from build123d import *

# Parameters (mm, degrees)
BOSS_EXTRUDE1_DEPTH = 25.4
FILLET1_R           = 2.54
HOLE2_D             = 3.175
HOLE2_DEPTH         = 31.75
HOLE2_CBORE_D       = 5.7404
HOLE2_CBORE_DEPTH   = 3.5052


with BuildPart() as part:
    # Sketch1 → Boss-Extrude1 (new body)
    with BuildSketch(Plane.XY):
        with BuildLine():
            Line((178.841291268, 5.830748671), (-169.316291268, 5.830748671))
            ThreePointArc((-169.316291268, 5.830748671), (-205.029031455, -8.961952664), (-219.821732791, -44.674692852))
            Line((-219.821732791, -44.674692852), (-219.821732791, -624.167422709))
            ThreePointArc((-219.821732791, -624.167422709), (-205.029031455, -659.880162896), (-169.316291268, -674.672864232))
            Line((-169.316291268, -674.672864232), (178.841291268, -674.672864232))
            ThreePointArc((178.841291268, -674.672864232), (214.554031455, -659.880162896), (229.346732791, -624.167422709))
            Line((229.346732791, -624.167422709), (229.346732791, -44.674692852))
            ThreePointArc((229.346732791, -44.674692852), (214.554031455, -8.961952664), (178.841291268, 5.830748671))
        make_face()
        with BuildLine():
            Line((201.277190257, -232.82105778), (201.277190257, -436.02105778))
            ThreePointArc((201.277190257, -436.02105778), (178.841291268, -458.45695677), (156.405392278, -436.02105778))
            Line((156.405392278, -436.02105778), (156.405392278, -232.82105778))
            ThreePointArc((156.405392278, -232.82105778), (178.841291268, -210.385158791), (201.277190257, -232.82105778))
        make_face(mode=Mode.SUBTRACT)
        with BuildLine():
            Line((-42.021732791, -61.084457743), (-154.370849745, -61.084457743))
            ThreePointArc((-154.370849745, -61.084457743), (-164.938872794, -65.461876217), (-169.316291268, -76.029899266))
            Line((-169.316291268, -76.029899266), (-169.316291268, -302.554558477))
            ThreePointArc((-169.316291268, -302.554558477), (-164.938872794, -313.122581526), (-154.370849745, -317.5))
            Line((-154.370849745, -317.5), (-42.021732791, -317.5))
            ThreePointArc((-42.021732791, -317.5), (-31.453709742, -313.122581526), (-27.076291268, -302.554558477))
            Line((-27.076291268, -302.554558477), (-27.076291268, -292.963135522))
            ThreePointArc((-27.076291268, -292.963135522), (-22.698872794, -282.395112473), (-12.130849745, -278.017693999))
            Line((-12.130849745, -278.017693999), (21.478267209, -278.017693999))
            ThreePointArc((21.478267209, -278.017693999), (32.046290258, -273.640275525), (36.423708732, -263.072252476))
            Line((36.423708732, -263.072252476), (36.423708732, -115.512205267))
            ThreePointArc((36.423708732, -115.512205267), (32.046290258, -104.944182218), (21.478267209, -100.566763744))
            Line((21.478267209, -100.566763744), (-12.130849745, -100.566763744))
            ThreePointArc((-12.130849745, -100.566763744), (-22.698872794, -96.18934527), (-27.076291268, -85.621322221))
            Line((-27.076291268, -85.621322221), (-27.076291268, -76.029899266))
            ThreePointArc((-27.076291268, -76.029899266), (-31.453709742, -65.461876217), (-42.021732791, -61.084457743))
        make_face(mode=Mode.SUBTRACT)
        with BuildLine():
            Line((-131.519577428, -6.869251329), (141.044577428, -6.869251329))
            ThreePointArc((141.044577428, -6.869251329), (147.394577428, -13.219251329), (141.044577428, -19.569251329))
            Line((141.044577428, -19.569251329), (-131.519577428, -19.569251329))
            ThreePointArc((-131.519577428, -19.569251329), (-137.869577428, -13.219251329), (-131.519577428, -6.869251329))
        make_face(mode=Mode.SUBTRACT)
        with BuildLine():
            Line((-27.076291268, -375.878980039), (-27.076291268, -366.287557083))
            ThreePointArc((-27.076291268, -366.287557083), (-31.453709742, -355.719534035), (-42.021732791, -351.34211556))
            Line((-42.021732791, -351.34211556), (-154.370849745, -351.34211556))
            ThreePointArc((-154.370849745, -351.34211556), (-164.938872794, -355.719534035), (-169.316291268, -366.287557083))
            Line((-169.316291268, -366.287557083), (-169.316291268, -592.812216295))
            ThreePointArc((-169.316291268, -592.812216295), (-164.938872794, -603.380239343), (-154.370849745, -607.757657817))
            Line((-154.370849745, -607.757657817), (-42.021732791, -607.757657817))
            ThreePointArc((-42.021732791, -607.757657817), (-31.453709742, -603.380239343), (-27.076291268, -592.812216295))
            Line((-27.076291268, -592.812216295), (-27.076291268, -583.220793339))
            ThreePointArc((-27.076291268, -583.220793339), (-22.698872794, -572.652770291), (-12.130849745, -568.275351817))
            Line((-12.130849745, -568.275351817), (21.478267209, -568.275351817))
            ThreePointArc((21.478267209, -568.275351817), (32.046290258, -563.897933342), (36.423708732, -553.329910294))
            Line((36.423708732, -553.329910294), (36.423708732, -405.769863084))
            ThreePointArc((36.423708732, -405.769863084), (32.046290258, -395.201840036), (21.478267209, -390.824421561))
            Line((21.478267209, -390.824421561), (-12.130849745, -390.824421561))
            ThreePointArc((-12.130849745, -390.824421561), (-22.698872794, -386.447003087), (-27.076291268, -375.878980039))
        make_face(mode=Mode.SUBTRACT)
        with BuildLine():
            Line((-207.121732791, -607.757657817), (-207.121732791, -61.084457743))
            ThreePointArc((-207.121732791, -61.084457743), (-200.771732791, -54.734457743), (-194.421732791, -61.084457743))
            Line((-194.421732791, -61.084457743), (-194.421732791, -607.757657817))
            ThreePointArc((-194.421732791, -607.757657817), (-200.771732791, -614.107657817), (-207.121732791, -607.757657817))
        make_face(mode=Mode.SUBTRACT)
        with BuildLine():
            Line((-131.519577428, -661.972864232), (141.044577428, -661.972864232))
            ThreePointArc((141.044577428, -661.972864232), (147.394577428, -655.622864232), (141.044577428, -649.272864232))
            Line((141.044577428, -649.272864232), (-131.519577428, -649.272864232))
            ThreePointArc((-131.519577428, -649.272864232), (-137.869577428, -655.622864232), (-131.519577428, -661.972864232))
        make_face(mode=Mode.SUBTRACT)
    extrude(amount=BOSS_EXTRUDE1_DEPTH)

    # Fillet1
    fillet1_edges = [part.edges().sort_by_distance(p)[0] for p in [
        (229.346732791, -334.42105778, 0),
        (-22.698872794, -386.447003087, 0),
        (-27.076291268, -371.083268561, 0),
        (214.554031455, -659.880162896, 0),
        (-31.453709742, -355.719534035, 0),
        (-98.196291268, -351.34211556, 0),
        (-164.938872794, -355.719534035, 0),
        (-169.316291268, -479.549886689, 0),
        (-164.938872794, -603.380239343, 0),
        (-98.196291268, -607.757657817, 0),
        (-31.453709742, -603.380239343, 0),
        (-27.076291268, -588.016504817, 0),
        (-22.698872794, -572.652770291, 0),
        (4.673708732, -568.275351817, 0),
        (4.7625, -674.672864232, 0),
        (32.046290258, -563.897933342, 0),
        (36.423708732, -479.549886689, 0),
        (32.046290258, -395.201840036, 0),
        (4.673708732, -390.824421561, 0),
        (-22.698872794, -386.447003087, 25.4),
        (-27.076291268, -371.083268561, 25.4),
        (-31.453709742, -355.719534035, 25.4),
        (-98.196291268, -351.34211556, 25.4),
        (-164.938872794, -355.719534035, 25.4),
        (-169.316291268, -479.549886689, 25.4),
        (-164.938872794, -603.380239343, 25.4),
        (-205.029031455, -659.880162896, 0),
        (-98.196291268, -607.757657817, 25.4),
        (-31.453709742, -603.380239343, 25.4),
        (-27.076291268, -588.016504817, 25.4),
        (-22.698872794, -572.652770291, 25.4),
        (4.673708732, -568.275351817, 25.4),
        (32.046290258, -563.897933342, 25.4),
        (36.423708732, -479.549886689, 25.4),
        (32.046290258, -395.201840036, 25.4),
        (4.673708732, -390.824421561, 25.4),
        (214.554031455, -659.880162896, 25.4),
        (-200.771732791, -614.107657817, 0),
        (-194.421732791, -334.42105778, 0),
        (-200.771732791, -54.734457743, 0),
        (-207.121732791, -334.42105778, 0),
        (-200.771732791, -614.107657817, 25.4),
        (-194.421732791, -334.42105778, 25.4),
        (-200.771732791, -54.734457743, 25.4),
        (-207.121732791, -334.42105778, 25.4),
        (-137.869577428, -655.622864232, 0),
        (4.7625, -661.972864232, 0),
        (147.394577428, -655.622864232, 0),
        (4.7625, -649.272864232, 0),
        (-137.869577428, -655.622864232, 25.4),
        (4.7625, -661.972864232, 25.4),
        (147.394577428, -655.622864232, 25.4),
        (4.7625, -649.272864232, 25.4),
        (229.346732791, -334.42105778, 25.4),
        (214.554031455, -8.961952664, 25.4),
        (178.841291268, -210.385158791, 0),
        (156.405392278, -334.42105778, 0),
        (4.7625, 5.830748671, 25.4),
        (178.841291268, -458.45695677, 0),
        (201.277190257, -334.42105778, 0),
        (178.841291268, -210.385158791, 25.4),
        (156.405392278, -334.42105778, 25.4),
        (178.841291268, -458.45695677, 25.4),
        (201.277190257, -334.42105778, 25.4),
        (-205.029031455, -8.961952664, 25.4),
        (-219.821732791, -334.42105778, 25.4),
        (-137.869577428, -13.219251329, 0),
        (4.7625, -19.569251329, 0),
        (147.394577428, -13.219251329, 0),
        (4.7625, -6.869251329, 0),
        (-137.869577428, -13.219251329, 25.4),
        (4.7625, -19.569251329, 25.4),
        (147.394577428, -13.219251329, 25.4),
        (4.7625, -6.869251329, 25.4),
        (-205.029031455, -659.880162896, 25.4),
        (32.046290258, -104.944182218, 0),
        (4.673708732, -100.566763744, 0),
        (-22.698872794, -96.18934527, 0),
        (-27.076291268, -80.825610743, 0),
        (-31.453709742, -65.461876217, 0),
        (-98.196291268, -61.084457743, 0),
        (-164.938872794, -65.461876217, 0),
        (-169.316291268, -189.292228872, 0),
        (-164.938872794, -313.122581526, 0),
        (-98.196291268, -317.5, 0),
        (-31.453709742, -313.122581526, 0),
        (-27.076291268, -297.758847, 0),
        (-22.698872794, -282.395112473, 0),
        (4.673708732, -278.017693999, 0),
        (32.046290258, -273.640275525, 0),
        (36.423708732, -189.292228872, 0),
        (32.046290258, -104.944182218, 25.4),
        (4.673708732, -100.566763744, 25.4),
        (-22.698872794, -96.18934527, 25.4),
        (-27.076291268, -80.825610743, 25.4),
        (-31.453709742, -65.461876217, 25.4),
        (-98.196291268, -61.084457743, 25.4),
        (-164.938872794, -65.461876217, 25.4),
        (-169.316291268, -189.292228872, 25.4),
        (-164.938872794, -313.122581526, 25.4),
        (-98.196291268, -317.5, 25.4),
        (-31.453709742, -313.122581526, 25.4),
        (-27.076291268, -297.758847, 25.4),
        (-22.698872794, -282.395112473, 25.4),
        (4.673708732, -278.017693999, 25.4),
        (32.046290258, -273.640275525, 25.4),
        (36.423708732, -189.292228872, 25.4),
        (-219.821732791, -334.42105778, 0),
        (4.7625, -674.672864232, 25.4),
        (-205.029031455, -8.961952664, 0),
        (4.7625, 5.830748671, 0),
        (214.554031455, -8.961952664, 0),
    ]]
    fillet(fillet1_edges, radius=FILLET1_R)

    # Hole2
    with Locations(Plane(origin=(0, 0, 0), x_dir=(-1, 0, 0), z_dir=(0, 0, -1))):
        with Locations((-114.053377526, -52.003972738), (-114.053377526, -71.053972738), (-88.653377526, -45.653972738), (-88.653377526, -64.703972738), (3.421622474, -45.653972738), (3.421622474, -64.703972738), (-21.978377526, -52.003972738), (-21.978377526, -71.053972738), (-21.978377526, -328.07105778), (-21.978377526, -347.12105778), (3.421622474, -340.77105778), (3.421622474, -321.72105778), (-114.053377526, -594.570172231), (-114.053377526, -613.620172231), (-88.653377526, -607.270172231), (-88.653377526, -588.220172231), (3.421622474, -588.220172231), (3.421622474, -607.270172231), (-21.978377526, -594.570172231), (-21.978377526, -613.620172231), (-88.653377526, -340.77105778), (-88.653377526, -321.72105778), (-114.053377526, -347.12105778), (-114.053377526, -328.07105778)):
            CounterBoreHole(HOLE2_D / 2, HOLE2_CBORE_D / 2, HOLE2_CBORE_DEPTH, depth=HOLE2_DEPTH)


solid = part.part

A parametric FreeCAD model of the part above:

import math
import FreeCAD as App
import Part
import Sketcher
from FreeCAD import Vector
Q = App.Units.Quantity


def edges_at(feature, points):
    """Names of the edges that pass closest to the given points."""
    edges = feature.Shape.Edges
    near = lambda p: min(range(len(edges)), key=lambda i: edges[i].distToShape(Part.Vertex(*p))[0])
    return sorted({f"Edge{near(p) + 1}" for p in points})

doc = App.newDocument("Part")
body = doc.addObject("PartDesign::Body", "Body")

# Sketch on XY plane
sketch1 = body.newObject("Sketcher::SketchObject", "Sketch")
sketch1.AttachmentSupport = (doc.getObject("XY_Plane"), [""])
sketch1.MapMode = "FlatFace"
sketch1.addGeometry([
    Part.LineSegment(Vector(179, 6, 0), Vector(-169, 6, 0)),  # 0
    Part.ArcOfCircle(Part.Circle(Vector(-169, -45, 0), Vector(0, 0, 1), 51), math.radians(90), math.radians(180)),  # 1
    Part.LineSegment(Vector(-220, -45, 0), Vector(-220, -624, 0)),  # 2
    Part.ArcOfCircle(Part.Circle(Vector(-169, -624, 0), Vector(0, 0, 1), 51), math.radians(-180), math.radians(-90)),  # 3
    Part.LineSegment(Vector(-169, -675, 0), Vector(179, -675, 0)),  # 4
    Part.ArcOfCircle(Part.Circle(Vector(179, -624, 0), Vector(0, 0, 1), 51), math.radians(-90), math.radians(0)),  # 5
    Part.LineSegment(Vector(229, -624, 0), Vector(229, -45, 0)),  # 6
    Part.ArcOfCircle(Part.Circle(Vector(179, -45, 0), Vector(0, 0, 1), 51), math.radians(0), math.radians(90)),  # 7
    Part.LineSegment(Vector(-27, -366, 0), Vector(-27, -376, 0)),  # 8
    Part.ArcOfCircle(Part.Circle(Vector(-12, -376, 0), Vector(0, 0, 1), 15), math.radians(180), math.radians(270)),  # 9
    Part.LineSegment(Vector(-12, -391, 0), Vector(21, -391, 0)),  # 10
    Part.ArcOfCircle(Part.Circle(Vector(21, -406, 0), Vector(0, 0, 1), 15), math.radians(0), math.radians(90)),  # 11
    Part.LineSegment(Vector(36, -406, 0), Vector(36, -553, 0)),  # 12
    Part.ArcOfCircle(Part.Circle(Vector(21, -553, 0), Vector(0, 0, 1), 15), math.radians(-90), math.radians(0)),  # 13
    Part.LineSegment(Vector(21, -568, 0), Vector(-12, -568, 0)),  # 14
    Part.ArcOfCircle(Part.Circle(Vector(-12, -583, 0), Vector(0, 0, 1), 15), math.radians(90), math.radians(180)),  # 15
    Part.LineSegment(Vector(-27, -583, 0), Vector(-27, -593, 0)),  # 16
    Part.ArcOfCircle(Part.Circle(Vector(-42, -593, 0), Vector(0, 0, 1), 15), math.radians(-90), math.radians(0)),  # 17
    Part.LineSegment(Vector(-42, -608, 0), Vector(-154, -608, 0)),  # 18
    Part.ArcOfCircle(Part.Circle(Vector(-154, -593, 0), Vector(0, 0, 1), 15), math.radians(180), math.radians(270)),  # 19
    Part.LineSegment(Vector(-169, -593, 0), Vector(-169, -366, 0)),  # 20
    Part.ArcOfCircle(Part.Circle(Vector(-154, -366, 0), Vector(0, 0, 1), 15), math.radians(90), math.radians(180)),  # 21
    Part.LineSegment(Vector(-154, -351, 0), Vector(-42, -351, 0)),  # 22
    Part.ArcOfCircle(Part.Circle(Vector(-42, -366, 0), Vector(0, 0, 1), 15), math.radians(0), math.radians(90)),  # 23
    Part.LineSegment(Vector(141, -662, 0), Vector(-132, -662, 0)),  # 24
    Part.ArcOfCircle(Part.Circle(Vector(-132, -656, 0), Vector(0, 0, 1), 6), math.radians(90), math.radians(270)),  # 25
    Part.LineSegment(Vector(-132, -649, 0), Vector(141, -649, 0)),  # 26
    Part.ArcOfCircle(Part.Circle(Vector(141, -656, 0), Vector(0, 0, 1), 6), math.radians(-90), math.radians(90)),  # 27
    Part.ArcOfCircle(Part.Circle(Vector(179, -233, 0), Vector(0, 0, 1), 22), math.radians(0), math.radians(180)),  # 28
    Part.LineSegment(Vector(201, -233, 0), Vector(201, -436, 0)),  # 29
    Part.ArcOfCircle(Part.Circle(Vector(179, -436, 0), Vector(0, 0, 1), 22), math.radians(180), math.radians(360)),  # 30
    Part.LineSegment(Vector(156, -436, 0), Vector(156, -233, 0)),  # 31
    Part.ArcOfCircle(Part.Circle(Vector(-201, -608, 0), Vector(0, 0, 1), 6), math.radians(180), math.radians(360)),  # 32
    Part.LineSegment(Vector(-207, -608, 0), Vector(-207, -61, 0)),  # 33
    Part.ArcOfCircle(Part.Circle(Vector(-201, -61, 0), Vector(0, 0, 1), 6), math.radians(0), math.radians(180)),  # 34
    Part.LineSegment(Vector(-194, -61, 0), Vector(-194, -608, 0)),  # 35
    Part.LineSegment(Vector(-154, -61, 0), Vector(-42, -61, 0)),  # 36
    Part.ArcOfCircle(Part.Circle(Vector(-42, -76, 0), Vector(0, 0, 1), 15), math.radians(0), math.radians(90)),  # 37
    Part.LineSegment(Vector(-27, -76, 0), Vector(-27, -86, 0)),  # 38
    Part.ArcOfCircle(Part.Circle(Vector(-12, -86, 0), Vector(0, 0, 1), 15), math.radians(180), math.radians(270)),  # 39
    Part.LineSegment(Vector(-12, -101, 0), Vector(21, -101, 0)),  # 40
    Part.ArcOfCircle(Part.Circle(Vector(21, -116, 0), Vector(0, 0, 1), 15), math.radians(0), math.radians(90)),  # 41
    Part.LineSegment(Vector(36, -116, 0), Vector(36, -263, 0)),  # 42
    Part.ArcOfCircle(Part.Circle(Vector(21, -263, 0), Vector(0, 0, 1), 15), math.radians(-90), math.radians(0)),  # 43
    Part.LineSegment(Vector(21, -278, 0), Vector(-12, -278, 0)),  # 44
    Part.ArcOfCircle(Part.Circle(Vector(-12, -293, 0), Vector(0, 0, 1), 15), math.radians(90), math.radians(180)),  # 45
    Part.LineSegment(Vector(-27, -293, 0), Vector(-27, -303, 0)),  # 46
    Part.ArcOfCircle(Part.Circle(Vector(-42, -303, 0), Vector(0, 0, 1), 15), math.radians(-90), math.radians(0)),  # 47
    Part.LineSegment(Vector(-42, -318, 0), Vector(-154, -318, 0)),  # 48
    Part.ArcOfCircle(Part.Circle(Vector(-154, -303, 0), Vector(0, 0, 1), 15), math.radians(180), math.radians(270)),  # 49
    Part.LineSegment(Vector(-169, -303, 0), Vector(-169, -76, 0)),  # 50
    Part.ArcOfCircle(Part.Circle(Vector(-154, -76, 0), Vector(0, 0, 1), 15), math.radians(90), math.radians(180)),  # 51
    Part.ArcOfCircle(Part.Circle(Vector(-132, -13, 0), Vector(0, 0, 1), 6), math.radians(90), math.radians(270)),  # 52
    Part.LineSegment(Vector(-132, -7, 0), Vector(141, -7, 0)),  # 53
    Part.ArcOfCircle(Part.Circle(Vector(141, -13, 0), Vector(0, 0, 1), 6), math.radians(-90), math.radians(90)),  # 54
    Part.LineSegment(Vector(141, -20, 0), Vector(-132, -20, 0)),  # 55
], False)
sketch1.addConstraint([
    Sketcher.Constraint("Tangent", 0, 2, 1, 1),
    Sketcher.Constraint("Tangent", 1, 2, 2, 1),
    Sketcher.Constraint("Tangent", 2, 2, 3, 1),
    Sketcher.Constraint("Tangent", 3, 2, 4, 1),
    Sketcher.Constraint("Tangent", 4, 2, 5, 1),
    Sketcher.Constraint("Tangent", 5, 2, 6, 1),
    Sketcher.Constraint("Tangent", 6, 2, 7, 1),
    Sketcher.Constraint("Tangent", 7, 2, 0, 1),
    Sketcher.Constraint("Tangent", 8, 2, 9, 1),
    Sketcher.Constraint("Tangent", 9, 2, 10, 1),
    Sketcher.Constraint("Tangent", 10, 2, 11, 2),
    Sketcher.Constraint("Tangent", 11, 1, 12, 1),
    Sketcher.Constraint("Tangent", 12, 2, 13, 2),
    Sketcher.Constraint("Tangent", 13, 1, 14, 1),
    Sketcher.Constraint("Tangent", 14, 2, 15, 1),
    Sketcher.Constraint("Tangent", 15, 2, 16, 1),
    Sketcher.Constraint("Tangent", 16, 2, 17, 2),
    Sketcher.Constraint("Tangent", 17, 1, 18, 1),
    Sketcher.Constraint("Tangent", 18, 2, 19, 2),
    Sketcher.Constraint("Tangent", 19, 1, 20, 1),
    Sketcher.Constraint("Tangent", 20, 2, 21, 2),
    Sketcher.Constraint("Tangent", 21, 1, 22, 1),
    Sketcher.Constraint("Tangent", 22, 2, 23, 2),
    Sketcher.Constraint("Tangent", 23, 1, 8, 1),
    Sketcher.Constraint("Tangent", 24, 2, 25, 2),
    Sketcher.Constraint("Tangent", 25, 1, 26, 1),
    Sketcher.Constraint("Tangent", 26, 2, 27, 2),
    Sketcher.Constraint("Tangent", 27, 1, 24, 1),
    Sketcher.Constraint("Tangent", 28, 1, 29, 1),
    Sketcher.Constraint("Tangent", 29, 2, 30, 2),
    Sketcher.Constraint("Tangent", 30, 1, 31, 1),
    Sketcher.Constraint("Tangent", 31, 2, 28, 2),
    Sketcher.Constraint("Tangent", 32, 1, 33, 1),
    Sketcher.Constraint("Tangent", 33, 2, 34, 2),
    Sketcher.Constraint("Tangent", 34, 1, 35, 1),
    Sketcher.Constraint("Tangent", 35, 2, 32, 2),
    Sketcher.Constraint("Tangent", 36, 2, 37, 2),
    Sketcher.Constraint("Tangent", 37, 1, 38, 1),
    Sketcher.Constraint("Tangent", 38, 2, 39, 1),
    Sketcher.Constraint("Tangent", 39, 2, 40, 1),
    Sketcher.Constraint("Tangent", 40, 2, 41, 2),
    Sketcher.Constraint("Tangent", 41, 1, 42, 1),
    Sketcher.Constraint("Tangent", 42, 2, 43, 2),
    Sketcher.Constraint("Tangent", 43, 1, 44, 1),
    Sketcher.Constraint("Tangent", 44, 2, 45, 1),
    Sketcher.Constraint("Tangent", 45, 2, 46, 1),
    Sketcher.Constraint("Tangent", 46, 2, 47, 2),
    Sketcher.Constraint("Tangent", 47, 1, 48, 1),
    Sketcher.Constraint("Tangent", 48, 2, 49, 2),
    Sketcher.Constraint("Tangent", 49, 1, 50, 1),
    Sketcher.Constraint("Tangent", 50, 2, 51, 2),
    Sketcher.Constraint("Tangent", 51, 1, 36, 1),
    Sketcher.Constraint("Tangent", 52, 1, 53, 1),
    Sketcher.Constraint("Tangent", 53, 2, 54, 2),
    Sketcher.Constraint("Tangent", 54, 1, 55, 1),
    Sketcher.Constraint("Tangent", 55, 2, 52, 2),
    Sketcher.Constraint("Horizontal", 0),
    Sketcher.Constraint("Vertical", 2),
    Sketcher.Constraint("Horizontal", 4),
    Sketcher.Constraint("Vertical", 6),
    Sketcher.Constraint("Vertical", 8),
    Sketcher.Constraint("Horizontal", 10),
    Sketcher.Constraint("Vertical", 12),
    Sketcher.Constraint("Horizontal", 14),
    Sketcher.Constraint("Vertical", 16),
    Sketcher.Constraint("Horizontal", 18),
    Sketcher.Constraint("Vertical", 20),
    Sketcher.Constraint("Horizontal", 22),
    Sketcher.Constraint("Horizontal", 24),
    Sketcher.Constraint("Horizontal", 26),
    Sketcher.Constraint("Vertical", 29),
    Sketcher.Constraint("Vertical", 31),
    Sketcher.Constraint("Vertical", 33),
    Sketcher.Constraint("Vertical", 35),
    Sketcher.Constraint("Horizontal", 36),
    Sketcher.Constraint("Vertical", 38),
    Sketcher.Constraint("Horizontal", 40),
    Sketcher.Constraint("Vertical", 42),
    Sketcher.Constraint("Horizontal", 44),
    Sketcher.Constraint("Vertical", 46),
    Sketcher.Constraint("Horizontal", 48),
    Sketcher.Constraint("Vertical", 50),
    Sketcher.Constraint("Horizontal", 53),
    Sketcher.Constraint("Horizontal", 55),
    Sketcher.Constraint("Equal", 1, 3),
    Sketcher.Constraint("Equal", 3, 5),
    Sketcher.Constraint("Equal", 5, 7),
    Sketcher.Constraint("Equal", 9, 11),
    Sketcher.Constraint("Equal", 11, 13),
    Sketcher.Constraint("Equal", 13, 15),
    Sketcher.Constraint("Equal", 15, 17),
    Sketcher.Constraint("Equal", 17, 19),
    Sketcher.Constraint("Equal", 19, 21),
    Sketcher.Constraint("Equal", 21, 23),
    Sketcher.Constraint("Equal", 27, 32),
    Sketcher.Constraint("Equal", 23, 37),
    Sketcher.Constraint("Equal", 37, 39),
    Sketcher.Constraint("Equal", 39, 41),
    Sketcher.Constraint("Equal", 41, 43),
    Sketcher.Constraint("Equal", 43, 45),
    Sketcher.Constraint("Equal", 45, 47),
    Sketcher.Constraint("Equal", 47, 49),
    Sketcher.Constraint("Equal", 49, 51),
    Sketcher.Constraint("Equal", 34, 52),
    Sketcher.Constraint("Horizontal", 32, 3, 17, 1),
    Sketcher.Constraint("Horizontal", 34, 1, 36, 2),
    Sketcher.Constraint("Vertical", 9, 3, 15, 3),
    Sketcher.Constraint("Vertical", 7, 3, 28, 3),
    Sketcher.Constraint("Vertical", 23, 3, 37, 3),
    Sketcher.Constraint("Vertical", 13, 3, 41, 3),
    Sketcher.Constraint("Vertical", 39, 3, 45, 3),
    Sketcher.Constraint("Vertical", 21, 3, 49, 3),
    Sketcher.Constraint("Vertical", 25, 3, 52, 3),
    Sketcher.Constraint("Vertical", 27, 3, 54, 3),
    Sketcher.Constraint("Vertical", 3, 2, 19, 1),
    Sketcher.Constraint("Equal", 8, 16),
    Sketcher.Constraint("Equal", 16, 38),
    Sketcher.Constraint("Equal", 12, 42),
    Sketcher.Constraint("Equal", 38, 46),
    Sketcher.Constraint("DistanceY", 29, 2, 29, 1, Q("8 in")),
    Sketcher.Constraint("Radius", 25, Q("0.25 in")),
    Sketcher.Constraint("DistanceY", 47, 1, -1, 1, Q("12.5 in")),
    Sketcher.Constraint("Radius", 28, Q("22.435899 mm")),
    Sketcher.Constraint("Radius", 1, Q("50.505442 mm")),
    Sketcher.Constraint("Radius", 9, Q("14.945442 mm")),
    Sketcher.Constraint("DistanceY", 33, 1, 33, 2, Q("546.6732 mm")),
    Sketcher.Constraint("DistanceY", 34, 3, -1, 1, Q("2.4048999 in")),
    Sketcher.Constraint("DistanceY", 2, 2, 2, 1, Q("579.49273 mm")),
    Sketcher.Constraint("DistanceX", 0, 2, 0, 1, Q("348.157583 mm")),
    Sketcher.Constraint("DistanceX", 10, 1, 10, 2, Q("33.609117 mm")),
    Sketcher.Constraint("DistanceX", 18, 2, 18, 1, Q("112.349117 mm")),
    Sketcher.Constraint("DistanceX", 24, 2, 24, 1, Q("272.564155 mm")),
    Sketcher.Constraint("DistanceY", 8, 2, 8, 1, Q("9.591423 mm")),
    Sketcher.Constraint("DistanceX", 1, 3, -1, 1, Q("169.316291 mm")),
    Sketcher.Constraint("DistanceY", 52, 3, -1, 1, Q("13.219251 mm")),
    Sketcher.Constraint("DistanceY", -1, 1, 0, 2, Q("5.830749 mm")),
    Sketcher.Constraint("DistanceX", 25, 3, -1, 1, Q("131.519577 mm")),
    Sketcher.Constraint("DistanceY", 25, 3, -1, 1, Q("655.622864 mm")),
    Sketcher.Constraint("DistanceY", 28, 3, -1, 1, Q("232.821058 mm")),
    Sketcher.Constraint("DistanceX", 32, 3, -1, 1, Q("200.771733 mm")),
])
pad1 = body.newObject("PartDesign::Pad", "Pad")
pad1.Profile = sketch1
pad1.Length = Q("1 in")
doc.recompute()

fillet = body.newObject("PartDesign::Fillet", "Fillet")
fillet.Base = (pad1, edges_at(pad1, [
    (229.347, -334.421, 0),
    (-22.699, -386.447, 0),
    (-27.076, -371.083, 0),
    (214.554, -659.88, 0),
    (-31.454, -355.72, 0),
    (-98.196, -351.342, 0),
    (-164.939, -355.72, 0),
    (-169.316, -479.55, 0),
    (-164.939, -603.38, 0),
    (-98.196, -607.758, 0),
    (-31.454, -603.38, 0),
    (-27.076, -588.017, 0),
    (-22.699, -572.653, 0),
    (4.674, -568.275, 0),
    (4.763, -674.673, 0),
    (32.046, -563.898, 0),
    (36.424, -479.55, 0),
    (32.046, -395.202, 0),
    (4.674, -390.824, 0),
    (-22.699, -386.447, 25.4),
    (-27.076, -371.083, 25.4),
    (-31.454, -355.72, 25.4),
    (-98.196, -351.342, 25.4),
    (-164.939, -355.72, 25.4),
    (-169.316, -479.55, 25.4),
    (-164.939, -603.38, 25.4),
    (-205.029, -659.88, 0),
    (-98.196, -607.758, 25.4),
    (-31.454, -603.38, 25.4),
    (-27.076, -588.017, 25.4),
    (-22.699, -572.653, 25.4),
    (4.674, -568.275, 25.4),
    (32.046, -563.898, 25.4),
    (36.424, -479.55, 25.4),
    (32.046, -395.202, 25.4),
    (4.674, -390.824, 25.4),
    (214.554, -659.88, 25.4),
    (-200.772, -614.108, 0),
    (-194.422, -334.421, 0),
    (-200.772, -54.734, 0),
    (-207.122, -334.421, 0),
    (-200.772, -614.108, 25.4),
    (-194.422, -334.421, 25.4),
    (-200.772, -54.734, 25.4),
    (-207.122, -334.421, 25.4),
    (-137.87, -655.623, 0),
    (4.763, -661.973, 0),
    (147.395, -655.623, 0),
    (4.763, -649.273, 0),
    (-137.87, -655.623, 25.4),
    (4.763, -661.973, 25.4),
    (147.395, -655.623, 25.4),
    (4.763, -649.273, 25.4),
    (229.347, -334.421, 25.4),
    (214.554, -8.962, 25.4),
    (178.841, -210.385, 0),
    (156.405, -334.421, 0),
    (4.763, 5.831, 25.4),
    (178.841, -458.457, 0),
    (201.277, -334.421, 0),
    (178.841, -210.385, 25.4),
    (156.405, -334.421, 25.4),
    (178.841, -458.457, 25.4),
    (201.277, -334.421, 25.4),
    (-205.029, -8.962, 25.4),
    (-219.822, -334.421, 25.4),
    (-137.87, -13.219, 0),
    (4.763, -19.569, 0),
    (147.395, -13.219, 0),
    (4.763, -6.869, 0),
    (-137.87, -13.219, 25.4),
    (4.763, -19.569, 25.4),
    (147.395, -13.219, 25.4),
    (4.763, -6.869, 25.4),
    (-205.029, -659.88, 25.4),
    (32.046, -104.944, 0),
    (4.674, -100.567, 0),
    (-22.699, -96.189, 0),
    (-27.076, -80.826, 0),
    (-31.454, -65.462, 0),
    (-98.196, -61.084, 0),
    (-164.939, -65.462, 0),
    (-169.316, -189.292, 0),
    (-164.939, -313.123, 0),
    (-98.196, -317.5, 0),
    (-31.454, -313.123, 0),
    (-27.076, -297.759, 0),
    (-22.699, -282.395, 0),
    (4.674, -278.018, 0),
    (32.046, -273.64, 0),
    (36.424, -189.292, 0),
    (32.046, -104.944, 25.4),
    (4.674, -100.567, 25.4),
    (-22.699, -96.189, 25.4),
    (-27.076, -80.826, 25.4),
    (-31.454, -65.462, 25.4),
    (-98.196, -61.084, 25.4),
    (-164.939, -65.462, 25.4),
    (-169.316, -189.292, 25.4),
    (-164.939, -313.123, 25.4),
    (-98.196, -317.5, 25.4),
    (-31.454, -313.123, 25.4),
    (-27.076, -297.759, 25.4),
    (-22.699, -282.395, 25.4),
    (4.674, -278.018, 25.4),
    (32.046, -273.64, 25.4),
    (36.424, -189.292, 25.4),
    (-219.822, -334.421, 0),
    (4.763, -674.673, 25.4),
    (-205.029, -8.962, 0),
    (4.763, 5.831, 0),
    (214.554, -8.962, 0),
]))
fillet.Radius = Q("0.1 in")

# Sketch on XY plane
sketch2 = body.newObject("Sketcher::SketchObject", "Sketch001")
sketch2.AttachmentSupport = (doc.getObject("XY_Plane"), [""])
sketch2.MapMode = "FlatFace"
sketch2.addGeometry([
    Part.Circle(Vector(114.1, -52, 0), Vector(0, 0, 1), 1.6),  # 0
    Part.Circle(Vector(114.1, -71.1, 0), Vector(0, 0, 1), 1.6),  # 1
    Part.Circle(Vector(88.7, -45.7, 0), Vector(0, 0, 1), 1.6),  # 2
    Part.Circle(Vector(88.7, -64.7, 0), Vector(0, 0, 1), 1.6),  # 3
    Part.Circle(Vector(-3.4, -45.7, 0), Vector(0, 0, 1), 1.6),  # 4
    Part.Circle(Vector(-3.4, -64.7, 0), Vector(0, 0, 1), 1.6),  # 5
    Part.Circle(Vector(22, -52, 0), Vector(0, 0, 1), 1.6),  # 6
    Part.Circle(Vector(22, -71.1, 0), Vector(0, 0, 1), 1.6),  # 7
    Part.Circle(Vector(22, -328.1, 0), Vector(0, 0, 1), 1.6),  # 8
    Part.Circle(Vector(22, -347.1, 0), Vector(0, 0, 1), 1.6),  # 9
    Part.Circle(Vector(-3.4, -340.8, 0), Vector(0, 0, 1), 1.6),  # 10
    Part.Circle(Vector(-3.4, -321.7, 0), Vector(0, 0, 1), 1.6),  # 11
    Part.Circle(Vector(114.1, -594.6, 0), Vector(0, 0, 1), 1.6),  # 12
    Part.Circle(Vector(114.1, -613.6, 0), Vector(0, 0, 1), 1.6),  # 13
    Part.Circle(Vector(88.7, -607.3, 0), Vector(0, 0, 1), 1.6),  # 14
    Part.Circle(Vector(88.7, -588.2, 0), Vector(0, 0, 1), 1.6),  # 15
    Part.Circle(Vector(-3.4, -588.2, 0), Vector(0, 0, 1), 1.6),  # 16
    Part.Circle(Vector(-3.4, -607.3, 0), Vector(0, 0, 1), 1.6),  # 17
    Part.Circle(Vector(22, -594.6, 0), Vector(0, 0, 1), 1.6),  # 18
    Part.Circle(Vector(22, -613.6, 0), Vector(0, 0, 1), 1.6),  # 19
    Part.Circle(Vector(88.7, -340.8, 0), Vector(0, 0, 1), 1.6),  # 20
    Part.Circle(Vector(88.7, -321.7, 0), Vector(0, 0, 1), 1.6),  # 21
    Part.Circle(Vector(114.1, -347.1, 0), Vector(0, 0, 1), 1.6),  # 22
    Part.Circle(Vector(114.1, -328.1, 0), Vector(0, 0, 1), 1.6),  # 23
], False)
sketch2.addConstraint([
    Sketcher.Constraint("Equal", 0, 1),
    Sketcher.Constraint("Equal", 1, 2),
    Sketcher.Constraint("Equal", 2, 3),
    Sketcher.Constraint("Equal", 3, 4),
    Sketcher.Constraint("Equal", 4, 5),
    Sketcher.Constraint("Equal", 5, 6),
    Sketcher.Constraint("Equal", 6, 7),
    Sketcher.Constraint("Equal", 7, 8),
    Sketcher.Constraint("Equal", 8, 9),
    Sketcher.Constraint("Equal", 9, 10),
    Sketcher.Constraint("Equal", 10, 11),
    Sketcher.Constraint("Equal", 11, 12),
    Sketcher.Constraint("Equal", 12, 13),
    Sketcher.Constraint("Equal", 13, 14),
    Sketcher.Constraint("Equal", 14, 15),
    Sketcher.Constraint("Equal", 15, 16),
    Sketcher.Constraint("Equal", 16, 17),
    Sketcher.Constraint("Equal", 17, 18),
    Sketcher.Constraint("Equal", 18, 19),
    Sketcher.Constraint("Equal", 19, 20),
    Sketcher.Constraint("Equal", 20, 21),
    Sketcher.Constraint("Equal", 21, 22),
    Sketcher.Constraint("Equal", 22, 23),
    Sketcher.Constraint("Horizontal", 2, 3, 4, 3),
    Sketcher.Constraint("Horizontal", 3, 3, 5, 3),
    Sketcher.Constraint("Horizontal", 0, 3, 6, 3),
    Sketcher.Constraint("Horizontal", 1, 3, 7, 3),
    Sketcher.Constraint("Horizontal", 15, 3, 16, 3),
    Sketcher.Constraint("Horizontal", 14, 3, 17, 3),
    Sketcher.Constraint("Horizontal", 12, 3, 18, 3),
    Sketcher.Constraint("Horizontal", 13, 3, 19, 3),
    Sketcher.Constraint("Horizontal", 10, 3, 20, 3),
    Sketcher.Constraint("Horizontal", 11, 3, 21, 3),
    Sketcher.Constraint("Horizontal", 9, 3, 22, 3),
    Sketcher.Constraint("Horizontal", 8, 3, 23, 3),
    Sketcher.Constraint("Vertical", 0, 3, 1, 3),
    Sketcher.Constraint("Vertical", 2, 3, 3, 3),
    Sketcher.Constraint("Vertical", 4, 3, 5, 3),
    Sketcher.Constraint("Vertical", 6, 3, 7, 3),
    Sketcher.Constraint("Vertical", 7, 3, 8, 3),
    Sketcher.Constraint("Vertical", 8, 3, 9, 3),
    Sketcher.Constraint("Vertical", 5, 3, 10, 3),
    Sketcher.Constraint("Vertical", 10, 3, 11, 3),
    Sketcher.Constraint("Vertical", 1, 3, 12, 3),
    Sketcher.Constraint("Vertical", 12, 3, 13, 3),
    Sketcher.Constraint("Vertical", 3, 3, 14, 3),
    Sketcher.Constraint("Vertical", 14, 3, 15, 3),
    Sketcher.Constraint("Vertical", 11, 3, 16, 3),
    Sketcher.Constraint("Vertical", 16, 3, 17, 3),
    Sketcher.Constraint("Vertical", 9, 3, 18, 3),
    Sketcher.Constraint("Vertical", 18, 3, 19, 3),
    Sketcher.Constraint("Vertical", 15, 3, 20, 3),
    Sketcher.Constraint("Vertical", 20, 3, 21, 3),
    Sketcher.Constraint("Vertical", 13, 3, 22, 3),
    Sketcher.Constraint("Vertical", 22, 3, 23, 3),
    Sketcher.Constraint("Diameter", 0, Q("0.125 in")),
    Sketcher.Constraint("DistanceX", 2, 3, 0, 3, Q("1 in")),
    Sketcher.Constraint("DistanceY", 1, 3, 2, 3, Q("1 in")),
    Sketcher.Constraint("DistanceX", 4, 3, 6, 3, Q("1 in")),
    Sketcher.Constraint("DistanceY", 9, 3, 11, 3, Q("1 in")),
    Sketcher.Constraint("DistanceY", 13, 3, 15, 3, Q("1 in")),
    Sketcher.Constraint("DistanceY", 3, 3, 0, 3, Q("0.5 in")),
    Sketcher.Constraint("DistanceY", 10, 3, 8, 3, Q("0.5 in")),
    Sketcher.Constraint("DistanceY", 14, 3, 12, 3, Q("0.5 in")),
    Sketcher.Constraint("DistanceY", 1, 3, 0, 3, Q("0.75 in")),
    Sketcher.Constraint("DistanceY", 9, 3, 8, 3, Q("0.75 in")),
    Sketcher.Constraint("DistanceY", 13, 3, 12, 3, Q("0.75 in")),
    Sketcher.Constraint("DistanceX", 4, 3, 2, 3, Q("3.625 in")),
    Sketcher.Constraint("DistanceY", 12, 3, 1, 3, Q("523.516199 mm")),
    Sketcher.Constraint("DistanceX", -1, 1, 0, 3, Q("114.053378 mm")),
    Sketcher.Constraint("DistanceY", 0, 3, -1, 1, Q("52.003973 mm")),
    Sketcher.Constraint("DistanceY", 8, 3, -1, 1, Q("328.071058 mm")),
])
doc.recompute()
hole = body.newObject("PartDesign::Hole", "Hole")
hole.Profile = sketch2
hole.ThreadType = "None"
hole.Diameter = Q("0.125 in")
hole.DepthType = "Dimension"
hole.Depth = Q("1.25 in")
hole.DrillPoint = "Flat"
hole.HoleCutType = "Counterbore"
hole.HoleCutDiameter = Q("0.226 in")
hole.HoleCutDepth = Q("0.138 in")
hole.Reversed = True

doc.recompute()
